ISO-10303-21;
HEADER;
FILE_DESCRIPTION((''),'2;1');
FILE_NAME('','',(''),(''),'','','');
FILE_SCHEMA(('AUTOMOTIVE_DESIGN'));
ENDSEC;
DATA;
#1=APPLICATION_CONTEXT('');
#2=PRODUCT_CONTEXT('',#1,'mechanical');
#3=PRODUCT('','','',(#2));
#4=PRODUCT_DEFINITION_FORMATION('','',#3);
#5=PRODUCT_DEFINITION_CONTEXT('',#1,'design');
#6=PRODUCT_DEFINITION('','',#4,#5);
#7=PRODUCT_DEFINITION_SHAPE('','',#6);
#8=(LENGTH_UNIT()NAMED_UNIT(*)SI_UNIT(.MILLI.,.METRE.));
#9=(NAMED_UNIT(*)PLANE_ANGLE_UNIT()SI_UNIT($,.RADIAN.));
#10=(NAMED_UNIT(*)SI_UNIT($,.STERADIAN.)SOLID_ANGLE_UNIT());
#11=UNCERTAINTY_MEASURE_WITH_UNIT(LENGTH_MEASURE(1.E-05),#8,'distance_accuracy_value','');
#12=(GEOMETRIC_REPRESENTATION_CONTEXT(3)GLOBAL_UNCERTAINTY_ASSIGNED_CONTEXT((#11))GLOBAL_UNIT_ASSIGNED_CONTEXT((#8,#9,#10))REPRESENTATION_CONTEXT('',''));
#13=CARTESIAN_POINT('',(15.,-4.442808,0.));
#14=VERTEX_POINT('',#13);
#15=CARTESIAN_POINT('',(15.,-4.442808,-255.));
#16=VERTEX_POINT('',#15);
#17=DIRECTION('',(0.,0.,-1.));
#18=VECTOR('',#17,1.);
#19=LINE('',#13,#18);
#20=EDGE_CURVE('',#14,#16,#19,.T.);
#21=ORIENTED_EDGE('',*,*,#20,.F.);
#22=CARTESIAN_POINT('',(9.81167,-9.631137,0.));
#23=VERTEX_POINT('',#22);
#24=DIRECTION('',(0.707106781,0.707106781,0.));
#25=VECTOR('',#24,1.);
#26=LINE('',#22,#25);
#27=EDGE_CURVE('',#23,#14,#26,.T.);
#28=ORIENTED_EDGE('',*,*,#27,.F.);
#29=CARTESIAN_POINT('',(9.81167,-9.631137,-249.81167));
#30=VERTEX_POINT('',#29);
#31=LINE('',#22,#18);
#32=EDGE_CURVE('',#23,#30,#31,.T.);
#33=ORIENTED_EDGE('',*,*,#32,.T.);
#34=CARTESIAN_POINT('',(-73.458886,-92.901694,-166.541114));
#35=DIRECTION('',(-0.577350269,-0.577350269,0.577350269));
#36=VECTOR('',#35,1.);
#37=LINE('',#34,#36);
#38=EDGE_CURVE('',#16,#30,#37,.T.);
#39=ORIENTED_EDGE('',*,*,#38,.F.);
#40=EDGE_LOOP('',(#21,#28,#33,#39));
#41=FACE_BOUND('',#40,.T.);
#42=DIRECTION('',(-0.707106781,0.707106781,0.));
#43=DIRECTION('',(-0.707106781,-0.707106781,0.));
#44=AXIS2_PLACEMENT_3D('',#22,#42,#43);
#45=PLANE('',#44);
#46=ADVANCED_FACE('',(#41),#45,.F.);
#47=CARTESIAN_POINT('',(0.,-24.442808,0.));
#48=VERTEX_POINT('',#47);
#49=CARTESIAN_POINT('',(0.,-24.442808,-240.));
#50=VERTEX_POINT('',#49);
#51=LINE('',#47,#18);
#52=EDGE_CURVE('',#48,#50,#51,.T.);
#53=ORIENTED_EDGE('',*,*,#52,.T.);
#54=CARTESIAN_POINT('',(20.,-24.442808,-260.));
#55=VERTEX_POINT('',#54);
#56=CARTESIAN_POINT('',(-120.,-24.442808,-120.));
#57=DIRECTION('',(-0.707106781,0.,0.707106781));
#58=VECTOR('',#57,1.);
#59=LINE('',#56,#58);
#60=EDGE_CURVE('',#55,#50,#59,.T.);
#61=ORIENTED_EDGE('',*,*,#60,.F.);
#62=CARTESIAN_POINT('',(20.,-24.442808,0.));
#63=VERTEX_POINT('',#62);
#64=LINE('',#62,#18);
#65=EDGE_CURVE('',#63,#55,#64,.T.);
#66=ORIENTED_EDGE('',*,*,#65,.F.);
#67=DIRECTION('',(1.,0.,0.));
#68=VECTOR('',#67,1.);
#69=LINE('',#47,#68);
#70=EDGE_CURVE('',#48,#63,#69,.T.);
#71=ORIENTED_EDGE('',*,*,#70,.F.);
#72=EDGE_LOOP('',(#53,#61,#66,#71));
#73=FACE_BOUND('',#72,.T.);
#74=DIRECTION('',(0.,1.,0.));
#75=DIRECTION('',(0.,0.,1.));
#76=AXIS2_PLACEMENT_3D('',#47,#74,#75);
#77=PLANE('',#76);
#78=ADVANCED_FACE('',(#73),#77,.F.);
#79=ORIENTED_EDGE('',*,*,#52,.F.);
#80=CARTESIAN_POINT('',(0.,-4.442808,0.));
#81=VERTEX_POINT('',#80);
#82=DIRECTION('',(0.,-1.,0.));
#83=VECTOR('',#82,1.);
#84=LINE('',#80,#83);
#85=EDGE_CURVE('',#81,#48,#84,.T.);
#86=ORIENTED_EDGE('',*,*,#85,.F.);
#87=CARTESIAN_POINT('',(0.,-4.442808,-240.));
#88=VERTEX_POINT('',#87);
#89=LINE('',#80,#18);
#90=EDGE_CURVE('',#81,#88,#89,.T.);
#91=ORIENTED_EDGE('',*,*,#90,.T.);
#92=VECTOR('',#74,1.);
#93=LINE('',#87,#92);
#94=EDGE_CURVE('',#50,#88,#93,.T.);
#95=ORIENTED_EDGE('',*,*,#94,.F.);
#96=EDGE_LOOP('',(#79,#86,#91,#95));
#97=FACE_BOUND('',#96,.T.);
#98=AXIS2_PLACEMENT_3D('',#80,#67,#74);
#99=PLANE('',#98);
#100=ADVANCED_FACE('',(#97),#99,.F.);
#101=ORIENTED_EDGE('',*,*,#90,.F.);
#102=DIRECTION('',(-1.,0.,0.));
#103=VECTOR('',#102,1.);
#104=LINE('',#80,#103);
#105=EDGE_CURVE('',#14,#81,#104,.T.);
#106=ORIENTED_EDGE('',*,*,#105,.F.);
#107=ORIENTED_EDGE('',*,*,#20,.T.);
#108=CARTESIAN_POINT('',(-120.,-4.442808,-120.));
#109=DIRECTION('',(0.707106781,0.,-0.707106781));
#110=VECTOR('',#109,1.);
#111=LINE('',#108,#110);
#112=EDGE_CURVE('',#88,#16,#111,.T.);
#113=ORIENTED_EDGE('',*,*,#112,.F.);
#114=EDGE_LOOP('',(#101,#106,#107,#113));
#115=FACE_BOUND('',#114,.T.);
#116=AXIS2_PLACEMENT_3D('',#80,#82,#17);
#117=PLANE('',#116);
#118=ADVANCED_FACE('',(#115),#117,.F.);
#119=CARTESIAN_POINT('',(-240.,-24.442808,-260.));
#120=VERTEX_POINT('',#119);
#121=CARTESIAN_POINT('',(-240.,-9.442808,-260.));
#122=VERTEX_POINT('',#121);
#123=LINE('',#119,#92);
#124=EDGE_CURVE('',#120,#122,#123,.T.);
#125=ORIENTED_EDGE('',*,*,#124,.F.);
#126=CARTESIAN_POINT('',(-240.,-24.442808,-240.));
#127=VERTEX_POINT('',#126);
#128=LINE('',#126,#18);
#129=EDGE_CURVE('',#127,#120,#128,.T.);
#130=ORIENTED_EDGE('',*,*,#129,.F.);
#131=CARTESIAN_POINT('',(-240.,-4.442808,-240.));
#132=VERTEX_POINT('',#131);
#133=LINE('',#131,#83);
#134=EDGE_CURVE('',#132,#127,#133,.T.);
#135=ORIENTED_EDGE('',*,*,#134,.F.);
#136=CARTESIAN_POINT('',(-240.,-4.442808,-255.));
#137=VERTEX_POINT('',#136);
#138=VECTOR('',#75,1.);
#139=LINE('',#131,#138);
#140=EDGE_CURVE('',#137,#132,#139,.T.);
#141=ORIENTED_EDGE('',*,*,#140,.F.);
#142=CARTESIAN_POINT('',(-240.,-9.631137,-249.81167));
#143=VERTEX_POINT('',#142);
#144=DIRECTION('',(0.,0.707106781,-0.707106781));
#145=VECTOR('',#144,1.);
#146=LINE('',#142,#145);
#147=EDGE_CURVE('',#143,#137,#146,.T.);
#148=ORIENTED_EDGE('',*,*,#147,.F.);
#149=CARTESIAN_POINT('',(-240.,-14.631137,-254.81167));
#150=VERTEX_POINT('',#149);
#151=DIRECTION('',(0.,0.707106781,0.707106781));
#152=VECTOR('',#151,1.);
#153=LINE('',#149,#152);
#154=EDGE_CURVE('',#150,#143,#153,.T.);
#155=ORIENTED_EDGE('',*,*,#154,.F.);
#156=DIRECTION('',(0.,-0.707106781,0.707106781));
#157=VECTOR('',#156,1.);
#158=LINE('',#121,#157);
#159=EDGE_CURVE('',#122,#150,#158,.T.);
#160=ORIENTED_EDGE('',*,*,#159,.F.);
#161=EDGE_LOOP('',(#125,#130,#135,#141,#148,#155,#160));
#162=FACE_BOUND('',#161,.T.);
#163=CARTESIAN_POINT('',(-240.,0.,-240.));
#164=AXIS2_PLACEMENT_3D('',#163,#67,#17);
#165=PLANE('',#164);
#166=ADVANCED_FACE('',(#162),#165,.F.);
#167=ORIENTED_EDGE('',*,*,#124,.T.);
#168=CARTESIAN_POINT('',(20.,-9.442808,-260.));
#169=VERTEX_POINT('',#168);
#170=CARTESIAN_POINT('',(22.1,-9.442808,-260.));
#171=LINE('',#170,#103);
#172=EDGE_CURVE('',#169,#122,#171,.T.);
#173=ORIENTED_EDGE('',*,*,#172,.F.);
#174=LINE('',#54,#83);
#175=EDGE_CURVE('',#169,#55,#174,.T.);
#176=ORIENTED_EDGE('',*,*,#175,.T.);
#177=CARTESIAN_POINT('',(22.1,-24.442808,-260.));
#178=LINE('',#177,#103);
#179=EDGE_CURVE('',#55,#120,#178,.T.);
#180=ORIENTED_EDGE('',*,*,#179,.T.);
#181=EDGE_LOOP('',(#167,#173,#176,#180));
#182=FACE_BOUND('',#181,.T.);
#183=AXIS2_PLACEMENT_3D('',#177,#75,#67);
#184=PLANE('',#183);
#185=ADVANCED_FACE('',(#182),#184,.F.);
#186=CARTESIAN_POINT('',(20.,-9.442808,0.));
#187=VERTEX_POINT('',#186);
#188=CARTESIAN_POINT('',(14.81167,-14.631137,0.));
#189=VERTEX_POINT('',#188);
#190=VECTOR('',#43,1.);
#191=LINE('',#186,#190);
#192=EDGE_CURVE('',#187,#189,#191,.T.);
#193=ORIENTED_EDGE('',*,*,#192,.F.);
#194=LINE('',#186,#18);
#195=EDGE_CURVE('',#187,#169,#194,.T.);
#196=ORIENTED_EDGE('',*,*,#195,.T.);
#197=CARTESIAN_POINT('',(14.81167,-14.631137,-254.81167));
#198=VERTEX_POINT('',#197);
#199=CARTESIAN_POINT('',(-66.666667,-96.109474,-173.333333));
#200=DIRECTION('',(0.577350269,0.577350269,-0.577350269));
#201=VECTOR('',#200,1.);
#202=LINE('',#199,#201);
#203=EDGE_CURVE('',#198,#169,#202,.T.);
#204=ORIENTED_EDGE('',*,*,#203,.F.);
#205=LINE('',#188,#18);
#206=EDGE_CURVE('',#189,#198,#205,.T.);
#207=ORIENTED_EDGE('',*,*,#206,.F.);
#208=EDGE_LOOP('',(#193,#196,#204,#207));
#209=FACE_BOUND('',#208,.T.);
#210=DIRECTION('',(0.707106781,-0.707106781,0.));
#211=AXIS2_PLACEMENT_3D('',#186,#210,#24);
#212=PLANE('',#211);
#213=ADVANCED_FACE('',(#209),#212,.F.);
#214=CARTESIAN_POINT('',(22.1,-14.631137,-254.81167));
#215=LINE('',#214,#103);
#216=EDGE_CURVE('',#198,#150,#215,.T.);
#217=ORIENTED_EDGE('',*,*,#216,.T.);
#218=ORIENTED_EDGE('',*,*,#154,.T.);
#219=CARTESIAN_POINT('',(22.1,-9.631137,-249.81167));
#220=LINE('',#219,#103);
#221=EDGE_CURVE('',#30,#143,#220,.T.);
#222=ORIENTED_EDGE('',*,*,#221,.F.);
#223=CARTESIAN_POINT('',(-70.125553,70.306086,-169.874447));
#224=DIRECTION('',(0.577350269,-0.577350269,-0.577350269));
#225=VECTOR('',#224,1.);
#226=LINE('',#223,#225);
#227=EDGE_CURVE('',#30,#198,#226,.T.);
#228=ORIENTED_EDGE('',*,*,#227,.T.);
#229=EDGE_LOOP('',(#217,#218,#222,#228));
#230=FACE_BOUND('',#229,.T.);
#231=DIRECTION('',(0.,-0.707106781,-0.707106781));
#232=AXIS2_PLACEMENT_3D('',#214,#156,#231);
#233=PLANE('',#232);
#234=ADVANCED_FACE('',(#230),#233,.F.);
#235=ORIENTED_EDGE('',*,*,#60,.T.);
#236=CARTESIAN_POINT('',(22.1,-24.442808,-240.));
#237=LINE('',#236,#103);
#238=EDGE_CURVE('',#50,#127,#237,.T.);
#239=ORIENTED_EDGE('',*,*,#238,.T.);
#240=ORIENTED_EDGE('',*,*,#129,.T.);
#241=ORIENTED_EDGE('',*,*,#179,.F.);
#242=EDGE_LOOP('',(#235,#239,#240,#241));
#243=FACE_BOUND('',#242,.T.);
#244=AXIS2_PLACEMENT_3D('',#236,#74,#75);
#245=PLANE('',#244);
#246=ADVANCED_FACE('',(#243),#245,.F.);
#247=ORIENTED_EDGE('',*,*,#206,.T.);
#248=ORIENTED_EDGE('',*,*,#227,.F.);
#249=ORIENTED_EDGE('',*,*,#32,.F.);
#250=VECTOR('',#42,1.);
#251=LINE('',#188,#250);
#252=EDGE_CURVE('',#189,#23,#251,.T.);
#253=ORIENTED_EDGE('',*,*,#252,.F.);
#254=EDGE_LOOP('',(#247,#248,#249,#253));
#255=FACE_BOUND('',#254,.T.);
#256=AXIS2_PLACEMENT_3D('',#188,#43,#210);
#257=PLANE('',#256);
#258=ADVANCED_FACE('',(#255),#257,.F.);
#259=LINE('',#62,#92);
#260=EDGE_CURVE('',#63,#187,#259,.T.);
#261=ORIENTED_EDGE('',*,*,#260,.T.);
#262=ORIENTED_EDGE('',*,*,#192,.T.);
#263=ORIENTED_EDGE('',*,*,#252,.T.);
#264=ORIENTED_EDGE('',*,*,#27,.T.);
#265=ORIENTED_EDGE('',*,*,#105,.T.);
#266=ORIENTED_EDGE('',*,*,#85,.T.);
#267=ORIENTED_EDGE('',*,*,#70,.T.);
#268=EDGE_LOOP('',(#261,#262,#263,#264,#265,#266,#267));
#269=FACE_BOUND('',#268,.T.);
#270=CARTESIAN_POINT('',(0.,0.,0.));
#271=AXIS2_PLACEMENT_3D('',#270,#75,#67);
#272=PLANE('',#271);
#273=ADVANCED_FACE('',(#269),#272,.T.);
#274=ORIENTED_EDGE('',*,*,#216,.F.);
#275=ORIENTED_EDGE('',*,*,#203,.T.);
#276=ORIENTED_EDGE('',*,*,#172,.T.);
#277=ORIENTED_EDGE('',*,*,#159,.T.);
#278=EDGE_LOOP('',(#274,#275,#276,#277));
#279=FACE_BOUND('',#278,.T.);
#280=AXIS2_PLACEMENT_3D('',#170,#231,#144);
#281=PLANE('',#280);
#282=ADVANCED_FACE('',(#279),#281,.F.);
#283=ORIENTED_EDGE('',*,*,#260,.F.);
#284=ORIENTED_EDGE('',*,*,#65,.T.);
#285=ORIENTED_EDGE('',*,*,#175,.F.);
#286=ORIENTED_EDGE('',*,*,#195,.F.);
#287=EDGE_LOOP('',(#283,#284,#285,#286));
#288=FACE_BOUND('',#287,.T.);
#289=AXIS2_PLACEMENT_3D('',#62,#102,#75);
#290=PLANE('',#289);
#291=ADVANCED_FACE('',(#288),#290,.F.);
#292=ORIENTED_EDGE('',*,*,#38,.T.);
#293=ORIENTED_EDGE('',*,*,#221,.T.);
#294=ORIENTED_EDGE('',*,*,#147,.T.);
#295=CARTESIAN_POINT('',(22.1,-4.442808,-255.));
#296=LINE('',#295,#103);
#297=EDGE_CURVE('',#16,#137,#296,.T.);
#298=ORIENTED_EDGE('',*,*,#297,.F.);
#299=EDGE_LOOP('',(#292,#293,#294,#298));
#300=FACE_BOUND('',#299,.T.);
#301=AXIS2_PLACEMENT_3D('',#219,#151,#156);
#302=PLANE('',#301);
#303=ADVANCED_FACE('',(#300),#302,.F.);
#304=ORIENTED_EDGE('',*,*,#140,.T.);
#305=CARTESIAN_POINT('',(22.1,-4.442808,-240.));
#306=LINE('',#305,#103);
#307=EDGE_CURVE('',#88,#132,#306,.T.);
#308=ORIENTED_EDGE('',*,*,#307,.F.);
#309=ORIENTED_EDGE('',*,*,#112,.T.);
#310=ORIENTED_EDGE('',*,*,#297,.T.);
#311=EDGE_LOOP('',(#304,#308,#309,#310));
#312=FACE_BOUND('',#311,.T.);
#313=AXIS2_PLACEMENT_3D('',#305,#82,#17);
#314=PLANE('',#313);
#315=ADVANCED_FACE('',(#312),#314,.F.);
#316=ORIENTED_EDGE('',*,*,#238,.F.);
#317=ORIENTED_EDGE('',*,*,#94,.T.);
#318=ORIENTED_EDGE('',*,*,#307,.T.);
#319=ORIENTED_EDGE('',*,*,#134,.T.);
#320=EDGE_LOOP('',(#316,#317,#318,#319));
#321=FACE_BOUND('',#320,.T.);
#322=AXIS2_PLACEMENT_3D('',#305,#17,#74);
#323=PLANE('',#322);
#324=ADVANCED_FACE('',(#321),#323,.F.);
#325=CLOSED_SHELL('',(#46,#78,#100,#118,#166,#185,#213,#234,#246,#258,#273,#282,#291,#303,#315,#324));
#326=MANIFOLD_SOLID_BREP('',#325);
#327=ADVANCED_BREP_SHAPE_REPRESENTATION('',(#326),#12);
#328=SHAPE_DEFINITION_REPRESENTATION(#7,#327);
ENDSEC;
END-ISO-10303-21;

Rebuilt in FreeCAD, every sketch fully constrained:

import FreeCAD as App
import Part
import Sketcher
from FreeCAD import Vector
Q = App.Units.Quantity


def add_polygon(sketch, points):
    """Adds a closed chain of lines whose ends are joined by coincident constraints."""
    first, n = sketch.GeometryCount, len(points)
    for a, b in zip(points, points[1:] + points[:1]):
        sketch.addGeometry(Part.LineSegment(App.Vector(*a, 0), App.Vector(*b, 0)), False)
    for i in range(n):
        sketch.addConstraint(Sketcher.Constraint("Coincident", first + i, 2, first + (i + 1) % n, 1))

doc = App.newDocument("Part")
body = doc.addObject("PartDesign::Body", "Body")

# Sketch on XY plane
sketch1 = body.newObject("Sketcher::SketchObject", "Sketch")
sketch1.AttachmentSupport = (doc.getObject("XY_Plane"), [""])
sketch1.MapMode = "FlatFace"
add_polygon(sketch1, [(0, -4), (0, -24), (20, -24), (20, -9), (15, -15), (10, -10), (15, -4)])  # lines 0-6
sketch1.addConstraint([
    Sketcher.Constraint("Vertical", 0),
    Sketcher.Constraint("Horizontal", 1),
    Sketcher.Constraint("Vertical", 2),
    Sketcher.Constraint("Horizontal", 6),
    Sketcher.Constraint("PointOnObject", 0, 2, -2),
    Sketcher.Constraint("Perpendicular", 3, 4),
    Sketcher.Constraint("Perpendicular", 4, 5),
    Sketcher.Constraint("Equal", 1, 0),
    Sketcher.Constraint("Equal", 6, 2),
    Sketcher.Constraint("Equal", 3, 5),
    Sketcher.Constraint("DistanceX", 1, 1, 1, 2, Q("20 mm")),
    Sketcher.Constraint("DistanceX", 6, 2, 6, 1, Q("15 mm")),
    Sketcher.Constraint("DistanceX", -1, 1, 3, 2, Q("14.81167 mm")),
    Sketcher.Constraint("DistanceY", 0, 2, -1, 1, Q("24.442808 mm")),
])

# Sketch on XZ plane
sketch2 = body.newObject("Sketcher::SketchObject", "Sketch001")
sketch2.AttachmentSupport = (doc.getObject("XZ_Plane"), [""])
sketch2.MapMode = "FlatFace"
sketch2.addGeometry([
    Part.LineSegment(Vector(0, 0, 0), Vector(0, -240, 0)),
    Part.LineSegment(Vector(0, -240, 0), Vector(-240, -240, 0)),
], False)
sketch2.addConstraint([
    Sketcher.Constraint("Coincident", 0, 2, 1, 1),
    Sketcher.Constraint("Vertical", 0),
    Sketcher.Constraint("Horizontal", 1),
    Sketcher.Constraint("Coincident", 0, 1, -1, 1),
    Sketcher.Constraint("Equal", 1, 0),
    Sketcher.Constraint("DistanceX", 1, 2, 1, 1, Q("240 mm")),
])
doc.recompute()

additivepipe = body.newObject("PartDesign::AdditivePipe", "AdditivePipe")
additivepipe.Profile = sketch1
additivepipe.Spine = (sketch2, ["Edge1", "Edge2"])
additivepipe.Transition = "Right corner"

doc.recompute()
